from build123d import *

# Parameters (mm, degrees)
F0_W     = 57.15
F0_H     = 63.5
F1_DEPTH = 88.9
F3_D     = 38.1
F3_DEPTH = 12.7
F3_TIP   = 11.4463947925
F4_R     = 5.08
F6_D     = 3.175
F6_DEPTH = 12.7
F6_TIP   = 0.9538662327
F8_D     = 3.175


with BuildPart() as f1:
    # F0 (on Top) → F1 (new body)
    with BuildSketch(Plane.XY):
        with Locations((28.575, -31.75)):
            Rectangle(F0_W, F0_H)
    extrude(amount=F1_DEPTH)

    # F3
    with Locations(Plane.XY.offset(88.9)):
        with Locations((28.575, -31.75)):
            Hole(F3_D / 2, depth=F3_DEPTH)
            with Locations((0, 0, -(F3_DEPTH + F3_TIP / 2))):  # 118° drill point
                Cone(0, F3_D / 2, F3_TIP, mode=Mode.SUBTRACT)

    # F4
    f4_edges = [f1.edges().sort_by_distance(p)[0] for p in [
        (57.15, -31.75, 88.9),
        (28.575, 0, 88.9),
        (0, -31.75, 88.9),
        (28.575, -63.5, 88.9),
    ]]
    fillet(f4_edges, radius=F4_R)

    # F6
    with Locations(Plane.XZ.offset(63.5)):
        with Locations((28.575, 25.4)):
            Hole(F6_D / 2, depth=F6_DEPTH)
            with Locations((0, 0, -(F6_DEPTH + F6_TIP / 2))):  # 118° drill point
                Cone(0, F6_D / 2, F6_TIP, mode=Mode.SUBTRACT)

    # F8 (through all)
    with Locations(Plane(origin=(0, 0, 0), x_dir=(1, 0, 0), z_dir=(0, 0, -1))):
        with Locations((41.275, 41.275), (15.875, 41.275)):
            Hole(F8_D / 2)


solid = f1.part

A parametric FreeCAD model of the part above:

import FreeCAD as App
import Part
import Sketcher
from FreeCAD import Vector
Q = App.Units.Quantity


def edges_at(feature, points):
    """Names of the edges that pass closest to the given points."""
    edges = feature.Shape.Edges
    near = lambda p: min(range(len(edges)), key=lambda i: edges[i].distToShape(Part.Vertex(*p))[0])
    return sorted({f"Edge{near(p) + 1}" for p in points})


def add_polygon(sketch, points):
    """Adds a closed chain of lines whose ends are joined by coincident constraints."""
    first, n = sketch.GeometryCount, len(points)
    for a, b in zip(points, points[1:] + points[:1]):
        sketch.addGeometry(Part.LineSegment(App.Vector(*a, 0), App.Vector(*b, 0)), False)
    for i in range(n):
        sketch.addConstraint(Sketcher.Constraint("Coincident", first + i, 2, first + (i + 1) % n, 1))

doc = App.newDocument("Part")
params = doc.addObject("Spreadsheet::Sheet", "Params")
for row, (alias, value) in enumerate([
    ("sketch1_height", "2.5 in"),
    ("sketch1_width", "2.25 in"),
    ("pad1_length", "3.5 in"),
    ("sketch2_diameter", "1.5 in"),
    ("hole_diameter", "1.5 in"),
    ("hole_depth", "0.5 in"),
    ("fillet_radius", "0.2 in"),
    ("sketch3_diameter", "0.125 in"),
    ("hole2_diameter", "0.125 in"),
    ("hole2_depth", "0.5 in"),
    ("sketch4_diameter", "0.125 in"),
    ("hole3_diameter", "0.125 in"),
], start=1):
    params.set(f"A{row}", alias)
    params.set(f"B{row}", "=" + value)
    params.setAlias(f"B{row}", alias)

body = doc.addObject("PartDesign::Body", "Body")

# Sketch on XY plane
sketch1 = body.newObject("Sketcher::SketchObject", "Sketch")
sketch1.AttachmentSupport = (doc.getObject("XY_Plane"), [""])
sketch1.MapMode = "FlatFace"
add_polygon(sketch1, [(0, 0), (0, -64), (57, -64), (57, 0)])  # lines 0-3
sketch1.addConstraint(Sketcher.Constraint("Vertical", 0))
sketch1.addConstraint(Sketcher.Constraint("Horizontal", 1))
sketch1.addConstraint(Sketcher.Constraint("Vertical", 2))
sketch1.addConstraint(Sketcher.Constraint("Horizontal", 3))
sketch1.addConstraint(Sketcher.Constraint("Coincident", 3, 2, -1, 1))
sketch1.addConstraint(Sketcher.Constraint("DistanceY", 0, 2, 0, 1, Q("2.5 in")))
sketch1.addConstraint(Sketcher.Constraint("DistanceX", 1, 1, 1, 2, Q("2.25 in")))
sketch1.setExpression("Constraints[9]", "Params.sketch1_height")
sketch1.setExpression("Constraints[10]", "Params.sketch1_width")
pad1 = body.newObject("PartDesign::Pad", "Pad")
pad1.Profile = sketch1
pad1.setExpression("Length", "Params.pad1_length")

# Sketch on XY plane
sketch2 = body.newObject("Sketcher::SketchObject", "Sketch001")
sketch2.AttachmentSupport = (doc.getObject("XY_Plane"), [""])
sketch2.MapMode = "FlatFace"
sketch2.AttachmentOffset = App.Placement(Vector(0, 0, 3.5 * 25.4), App.Rotation())
sketch2.addGeometry(Part.Circle(Vector(29, -32, 0), Vector(0, 0, 1), 19), False)
sketch2.addConstraint(Sketcher.Constraint("Diameter", 0, Q("1.5 in")))
sketch2.addConstraint(Sketcher.Constraint("DistanceY", 0, 3, -1, 1, Q("1.25 in")))
sketch2.addConstraint(Sketcher.Constraint("DistanceX", -1, 1, 0, 3, Q("1.125 in")))
sketch2.setExpression("Constraints[0]", "Params.sketch2_diameter")
doc.recompute()
hole = body.newObject("PartDesign::Hole", "Hole")
hole.Profile = sketch2
hole.ThreadType = "None"
hole.setExpression("Diameter", "Params.hole_diameter")
hole.DepthType = "Dimension"
hole.setExpression("Depth", "Params.hole_depth")
hole.DrillPoint = "Angled"
hole.DrillPointAngle = 118
doc.recompute()

fillet = body.newObject("PartDesign::Fillet", "Fillet")
fillet.Base = (hole, edges_at(hole, [
    (57.15, -31.75, 88.9),
    (28.575, 0, 88.9),
    (0, -31.75, 88.9),
    (28.575, -63.5, 88.9),
]))
fillet.setExpression("Radius", "Params.fillet_radius")

# Sketch on XZ plane
sketch3 = body.newObject("Sketcher::SketchObject", "Sketch002")
sketch3.AttachmentSupport = (doc.getObject("XZ_Plane"), [""])
sketch3.MapMode = "FlatFace"
sketch3.AttachmentOffset = App.Placement(Vector(0, 0, 2.5 * 25.4), App.Rotation())
sketch3.addGeometry(Part.Circle(Vector(28.6, 25.4, 0), Vector(0, 0, 1), 1.6), False)
sketch3.addConstraint(Sketcher.Constraint("Diameter", 0, Q("0.125 in")))
sketch3.addConstraint(Sketcher.Constraint("DistanceY", -1, 1, 0, 3, Q("1 in")))
sketch3.addConstraint(Sketcher.Constraint("DistanceX", -1, 1, 0, 3, Q("1.125 in")))
sketch3.setExpression("Constraints[0]", "Params.sketch3_diameter")
doc.recompute()
hole2 = body.newObject("PartDesign::Hole", "Hole001")
hole2.Profile = sketch3
hole2.ThreadType = "None"
hole2.setExpression("Diameter", "Params.hole2_diameter")
hole2.DepthType = "Dimension"
hole2.setExpression("Depth", "Params.hole2_depth")
hole2.DrillPoint = "Angled"
hole2.DrillPointAngle = 118

# Sketch on XY plane
sketch4 = body.newObject("Sketcher::SketchObject", "Sketch003")
sketch4.AttachmentSupport = (doc.getObject("XY_Plane"), [""])
sketch4.MapMode = "FlatFace"
sketch4.addGeometry(Part.Circle(Vector(41.3, -41.3, 0), Vector(0, 0, 1), 1.6), False)
sketch4.addGeometry(Part.Circle(Vector(15.9, -41.3, 0), Vector(0, 0, 1), 1.6), False)
sketch4.addConstraint(Sketcher.Constraint("Equal", 0, 1))
sketch4.addConstraint(Sketcher.Constraint("Horizontal", 0, 3, 1, 3))
sketch4.addConstraint(Sketcher.Constraint("Diameter", 0, Q("0.125 in")))
sketch4.addConstraint(Sketcher.Constraint("DistanceX", 1, 3, 0, 3, Q("1 in")))
sketch4.addConstraint(Sketcher.Constraint("DistanceX", -1, 1, 0, 3, Q("1.625 in")))
sketch4.addConstraint(Sketcher.Constraint("DistanceY", 0, 3, -1, 1, Q("1.625 in")))
sketch4.setExpression("Constraints[2]", "Params.sketch4_diameter")
doc.recompute()
hole3 = body.newObject("PartDesign::Hole", "Hole002")
hole3.Profile = sketch4
hole3.ThreadType = "None"
hole3.setExpression("Diameter", "Params.hole3_diameter")
hole3.DepthType = "ThroughAll"
hole3.Reversed = True

doc.recompute()
